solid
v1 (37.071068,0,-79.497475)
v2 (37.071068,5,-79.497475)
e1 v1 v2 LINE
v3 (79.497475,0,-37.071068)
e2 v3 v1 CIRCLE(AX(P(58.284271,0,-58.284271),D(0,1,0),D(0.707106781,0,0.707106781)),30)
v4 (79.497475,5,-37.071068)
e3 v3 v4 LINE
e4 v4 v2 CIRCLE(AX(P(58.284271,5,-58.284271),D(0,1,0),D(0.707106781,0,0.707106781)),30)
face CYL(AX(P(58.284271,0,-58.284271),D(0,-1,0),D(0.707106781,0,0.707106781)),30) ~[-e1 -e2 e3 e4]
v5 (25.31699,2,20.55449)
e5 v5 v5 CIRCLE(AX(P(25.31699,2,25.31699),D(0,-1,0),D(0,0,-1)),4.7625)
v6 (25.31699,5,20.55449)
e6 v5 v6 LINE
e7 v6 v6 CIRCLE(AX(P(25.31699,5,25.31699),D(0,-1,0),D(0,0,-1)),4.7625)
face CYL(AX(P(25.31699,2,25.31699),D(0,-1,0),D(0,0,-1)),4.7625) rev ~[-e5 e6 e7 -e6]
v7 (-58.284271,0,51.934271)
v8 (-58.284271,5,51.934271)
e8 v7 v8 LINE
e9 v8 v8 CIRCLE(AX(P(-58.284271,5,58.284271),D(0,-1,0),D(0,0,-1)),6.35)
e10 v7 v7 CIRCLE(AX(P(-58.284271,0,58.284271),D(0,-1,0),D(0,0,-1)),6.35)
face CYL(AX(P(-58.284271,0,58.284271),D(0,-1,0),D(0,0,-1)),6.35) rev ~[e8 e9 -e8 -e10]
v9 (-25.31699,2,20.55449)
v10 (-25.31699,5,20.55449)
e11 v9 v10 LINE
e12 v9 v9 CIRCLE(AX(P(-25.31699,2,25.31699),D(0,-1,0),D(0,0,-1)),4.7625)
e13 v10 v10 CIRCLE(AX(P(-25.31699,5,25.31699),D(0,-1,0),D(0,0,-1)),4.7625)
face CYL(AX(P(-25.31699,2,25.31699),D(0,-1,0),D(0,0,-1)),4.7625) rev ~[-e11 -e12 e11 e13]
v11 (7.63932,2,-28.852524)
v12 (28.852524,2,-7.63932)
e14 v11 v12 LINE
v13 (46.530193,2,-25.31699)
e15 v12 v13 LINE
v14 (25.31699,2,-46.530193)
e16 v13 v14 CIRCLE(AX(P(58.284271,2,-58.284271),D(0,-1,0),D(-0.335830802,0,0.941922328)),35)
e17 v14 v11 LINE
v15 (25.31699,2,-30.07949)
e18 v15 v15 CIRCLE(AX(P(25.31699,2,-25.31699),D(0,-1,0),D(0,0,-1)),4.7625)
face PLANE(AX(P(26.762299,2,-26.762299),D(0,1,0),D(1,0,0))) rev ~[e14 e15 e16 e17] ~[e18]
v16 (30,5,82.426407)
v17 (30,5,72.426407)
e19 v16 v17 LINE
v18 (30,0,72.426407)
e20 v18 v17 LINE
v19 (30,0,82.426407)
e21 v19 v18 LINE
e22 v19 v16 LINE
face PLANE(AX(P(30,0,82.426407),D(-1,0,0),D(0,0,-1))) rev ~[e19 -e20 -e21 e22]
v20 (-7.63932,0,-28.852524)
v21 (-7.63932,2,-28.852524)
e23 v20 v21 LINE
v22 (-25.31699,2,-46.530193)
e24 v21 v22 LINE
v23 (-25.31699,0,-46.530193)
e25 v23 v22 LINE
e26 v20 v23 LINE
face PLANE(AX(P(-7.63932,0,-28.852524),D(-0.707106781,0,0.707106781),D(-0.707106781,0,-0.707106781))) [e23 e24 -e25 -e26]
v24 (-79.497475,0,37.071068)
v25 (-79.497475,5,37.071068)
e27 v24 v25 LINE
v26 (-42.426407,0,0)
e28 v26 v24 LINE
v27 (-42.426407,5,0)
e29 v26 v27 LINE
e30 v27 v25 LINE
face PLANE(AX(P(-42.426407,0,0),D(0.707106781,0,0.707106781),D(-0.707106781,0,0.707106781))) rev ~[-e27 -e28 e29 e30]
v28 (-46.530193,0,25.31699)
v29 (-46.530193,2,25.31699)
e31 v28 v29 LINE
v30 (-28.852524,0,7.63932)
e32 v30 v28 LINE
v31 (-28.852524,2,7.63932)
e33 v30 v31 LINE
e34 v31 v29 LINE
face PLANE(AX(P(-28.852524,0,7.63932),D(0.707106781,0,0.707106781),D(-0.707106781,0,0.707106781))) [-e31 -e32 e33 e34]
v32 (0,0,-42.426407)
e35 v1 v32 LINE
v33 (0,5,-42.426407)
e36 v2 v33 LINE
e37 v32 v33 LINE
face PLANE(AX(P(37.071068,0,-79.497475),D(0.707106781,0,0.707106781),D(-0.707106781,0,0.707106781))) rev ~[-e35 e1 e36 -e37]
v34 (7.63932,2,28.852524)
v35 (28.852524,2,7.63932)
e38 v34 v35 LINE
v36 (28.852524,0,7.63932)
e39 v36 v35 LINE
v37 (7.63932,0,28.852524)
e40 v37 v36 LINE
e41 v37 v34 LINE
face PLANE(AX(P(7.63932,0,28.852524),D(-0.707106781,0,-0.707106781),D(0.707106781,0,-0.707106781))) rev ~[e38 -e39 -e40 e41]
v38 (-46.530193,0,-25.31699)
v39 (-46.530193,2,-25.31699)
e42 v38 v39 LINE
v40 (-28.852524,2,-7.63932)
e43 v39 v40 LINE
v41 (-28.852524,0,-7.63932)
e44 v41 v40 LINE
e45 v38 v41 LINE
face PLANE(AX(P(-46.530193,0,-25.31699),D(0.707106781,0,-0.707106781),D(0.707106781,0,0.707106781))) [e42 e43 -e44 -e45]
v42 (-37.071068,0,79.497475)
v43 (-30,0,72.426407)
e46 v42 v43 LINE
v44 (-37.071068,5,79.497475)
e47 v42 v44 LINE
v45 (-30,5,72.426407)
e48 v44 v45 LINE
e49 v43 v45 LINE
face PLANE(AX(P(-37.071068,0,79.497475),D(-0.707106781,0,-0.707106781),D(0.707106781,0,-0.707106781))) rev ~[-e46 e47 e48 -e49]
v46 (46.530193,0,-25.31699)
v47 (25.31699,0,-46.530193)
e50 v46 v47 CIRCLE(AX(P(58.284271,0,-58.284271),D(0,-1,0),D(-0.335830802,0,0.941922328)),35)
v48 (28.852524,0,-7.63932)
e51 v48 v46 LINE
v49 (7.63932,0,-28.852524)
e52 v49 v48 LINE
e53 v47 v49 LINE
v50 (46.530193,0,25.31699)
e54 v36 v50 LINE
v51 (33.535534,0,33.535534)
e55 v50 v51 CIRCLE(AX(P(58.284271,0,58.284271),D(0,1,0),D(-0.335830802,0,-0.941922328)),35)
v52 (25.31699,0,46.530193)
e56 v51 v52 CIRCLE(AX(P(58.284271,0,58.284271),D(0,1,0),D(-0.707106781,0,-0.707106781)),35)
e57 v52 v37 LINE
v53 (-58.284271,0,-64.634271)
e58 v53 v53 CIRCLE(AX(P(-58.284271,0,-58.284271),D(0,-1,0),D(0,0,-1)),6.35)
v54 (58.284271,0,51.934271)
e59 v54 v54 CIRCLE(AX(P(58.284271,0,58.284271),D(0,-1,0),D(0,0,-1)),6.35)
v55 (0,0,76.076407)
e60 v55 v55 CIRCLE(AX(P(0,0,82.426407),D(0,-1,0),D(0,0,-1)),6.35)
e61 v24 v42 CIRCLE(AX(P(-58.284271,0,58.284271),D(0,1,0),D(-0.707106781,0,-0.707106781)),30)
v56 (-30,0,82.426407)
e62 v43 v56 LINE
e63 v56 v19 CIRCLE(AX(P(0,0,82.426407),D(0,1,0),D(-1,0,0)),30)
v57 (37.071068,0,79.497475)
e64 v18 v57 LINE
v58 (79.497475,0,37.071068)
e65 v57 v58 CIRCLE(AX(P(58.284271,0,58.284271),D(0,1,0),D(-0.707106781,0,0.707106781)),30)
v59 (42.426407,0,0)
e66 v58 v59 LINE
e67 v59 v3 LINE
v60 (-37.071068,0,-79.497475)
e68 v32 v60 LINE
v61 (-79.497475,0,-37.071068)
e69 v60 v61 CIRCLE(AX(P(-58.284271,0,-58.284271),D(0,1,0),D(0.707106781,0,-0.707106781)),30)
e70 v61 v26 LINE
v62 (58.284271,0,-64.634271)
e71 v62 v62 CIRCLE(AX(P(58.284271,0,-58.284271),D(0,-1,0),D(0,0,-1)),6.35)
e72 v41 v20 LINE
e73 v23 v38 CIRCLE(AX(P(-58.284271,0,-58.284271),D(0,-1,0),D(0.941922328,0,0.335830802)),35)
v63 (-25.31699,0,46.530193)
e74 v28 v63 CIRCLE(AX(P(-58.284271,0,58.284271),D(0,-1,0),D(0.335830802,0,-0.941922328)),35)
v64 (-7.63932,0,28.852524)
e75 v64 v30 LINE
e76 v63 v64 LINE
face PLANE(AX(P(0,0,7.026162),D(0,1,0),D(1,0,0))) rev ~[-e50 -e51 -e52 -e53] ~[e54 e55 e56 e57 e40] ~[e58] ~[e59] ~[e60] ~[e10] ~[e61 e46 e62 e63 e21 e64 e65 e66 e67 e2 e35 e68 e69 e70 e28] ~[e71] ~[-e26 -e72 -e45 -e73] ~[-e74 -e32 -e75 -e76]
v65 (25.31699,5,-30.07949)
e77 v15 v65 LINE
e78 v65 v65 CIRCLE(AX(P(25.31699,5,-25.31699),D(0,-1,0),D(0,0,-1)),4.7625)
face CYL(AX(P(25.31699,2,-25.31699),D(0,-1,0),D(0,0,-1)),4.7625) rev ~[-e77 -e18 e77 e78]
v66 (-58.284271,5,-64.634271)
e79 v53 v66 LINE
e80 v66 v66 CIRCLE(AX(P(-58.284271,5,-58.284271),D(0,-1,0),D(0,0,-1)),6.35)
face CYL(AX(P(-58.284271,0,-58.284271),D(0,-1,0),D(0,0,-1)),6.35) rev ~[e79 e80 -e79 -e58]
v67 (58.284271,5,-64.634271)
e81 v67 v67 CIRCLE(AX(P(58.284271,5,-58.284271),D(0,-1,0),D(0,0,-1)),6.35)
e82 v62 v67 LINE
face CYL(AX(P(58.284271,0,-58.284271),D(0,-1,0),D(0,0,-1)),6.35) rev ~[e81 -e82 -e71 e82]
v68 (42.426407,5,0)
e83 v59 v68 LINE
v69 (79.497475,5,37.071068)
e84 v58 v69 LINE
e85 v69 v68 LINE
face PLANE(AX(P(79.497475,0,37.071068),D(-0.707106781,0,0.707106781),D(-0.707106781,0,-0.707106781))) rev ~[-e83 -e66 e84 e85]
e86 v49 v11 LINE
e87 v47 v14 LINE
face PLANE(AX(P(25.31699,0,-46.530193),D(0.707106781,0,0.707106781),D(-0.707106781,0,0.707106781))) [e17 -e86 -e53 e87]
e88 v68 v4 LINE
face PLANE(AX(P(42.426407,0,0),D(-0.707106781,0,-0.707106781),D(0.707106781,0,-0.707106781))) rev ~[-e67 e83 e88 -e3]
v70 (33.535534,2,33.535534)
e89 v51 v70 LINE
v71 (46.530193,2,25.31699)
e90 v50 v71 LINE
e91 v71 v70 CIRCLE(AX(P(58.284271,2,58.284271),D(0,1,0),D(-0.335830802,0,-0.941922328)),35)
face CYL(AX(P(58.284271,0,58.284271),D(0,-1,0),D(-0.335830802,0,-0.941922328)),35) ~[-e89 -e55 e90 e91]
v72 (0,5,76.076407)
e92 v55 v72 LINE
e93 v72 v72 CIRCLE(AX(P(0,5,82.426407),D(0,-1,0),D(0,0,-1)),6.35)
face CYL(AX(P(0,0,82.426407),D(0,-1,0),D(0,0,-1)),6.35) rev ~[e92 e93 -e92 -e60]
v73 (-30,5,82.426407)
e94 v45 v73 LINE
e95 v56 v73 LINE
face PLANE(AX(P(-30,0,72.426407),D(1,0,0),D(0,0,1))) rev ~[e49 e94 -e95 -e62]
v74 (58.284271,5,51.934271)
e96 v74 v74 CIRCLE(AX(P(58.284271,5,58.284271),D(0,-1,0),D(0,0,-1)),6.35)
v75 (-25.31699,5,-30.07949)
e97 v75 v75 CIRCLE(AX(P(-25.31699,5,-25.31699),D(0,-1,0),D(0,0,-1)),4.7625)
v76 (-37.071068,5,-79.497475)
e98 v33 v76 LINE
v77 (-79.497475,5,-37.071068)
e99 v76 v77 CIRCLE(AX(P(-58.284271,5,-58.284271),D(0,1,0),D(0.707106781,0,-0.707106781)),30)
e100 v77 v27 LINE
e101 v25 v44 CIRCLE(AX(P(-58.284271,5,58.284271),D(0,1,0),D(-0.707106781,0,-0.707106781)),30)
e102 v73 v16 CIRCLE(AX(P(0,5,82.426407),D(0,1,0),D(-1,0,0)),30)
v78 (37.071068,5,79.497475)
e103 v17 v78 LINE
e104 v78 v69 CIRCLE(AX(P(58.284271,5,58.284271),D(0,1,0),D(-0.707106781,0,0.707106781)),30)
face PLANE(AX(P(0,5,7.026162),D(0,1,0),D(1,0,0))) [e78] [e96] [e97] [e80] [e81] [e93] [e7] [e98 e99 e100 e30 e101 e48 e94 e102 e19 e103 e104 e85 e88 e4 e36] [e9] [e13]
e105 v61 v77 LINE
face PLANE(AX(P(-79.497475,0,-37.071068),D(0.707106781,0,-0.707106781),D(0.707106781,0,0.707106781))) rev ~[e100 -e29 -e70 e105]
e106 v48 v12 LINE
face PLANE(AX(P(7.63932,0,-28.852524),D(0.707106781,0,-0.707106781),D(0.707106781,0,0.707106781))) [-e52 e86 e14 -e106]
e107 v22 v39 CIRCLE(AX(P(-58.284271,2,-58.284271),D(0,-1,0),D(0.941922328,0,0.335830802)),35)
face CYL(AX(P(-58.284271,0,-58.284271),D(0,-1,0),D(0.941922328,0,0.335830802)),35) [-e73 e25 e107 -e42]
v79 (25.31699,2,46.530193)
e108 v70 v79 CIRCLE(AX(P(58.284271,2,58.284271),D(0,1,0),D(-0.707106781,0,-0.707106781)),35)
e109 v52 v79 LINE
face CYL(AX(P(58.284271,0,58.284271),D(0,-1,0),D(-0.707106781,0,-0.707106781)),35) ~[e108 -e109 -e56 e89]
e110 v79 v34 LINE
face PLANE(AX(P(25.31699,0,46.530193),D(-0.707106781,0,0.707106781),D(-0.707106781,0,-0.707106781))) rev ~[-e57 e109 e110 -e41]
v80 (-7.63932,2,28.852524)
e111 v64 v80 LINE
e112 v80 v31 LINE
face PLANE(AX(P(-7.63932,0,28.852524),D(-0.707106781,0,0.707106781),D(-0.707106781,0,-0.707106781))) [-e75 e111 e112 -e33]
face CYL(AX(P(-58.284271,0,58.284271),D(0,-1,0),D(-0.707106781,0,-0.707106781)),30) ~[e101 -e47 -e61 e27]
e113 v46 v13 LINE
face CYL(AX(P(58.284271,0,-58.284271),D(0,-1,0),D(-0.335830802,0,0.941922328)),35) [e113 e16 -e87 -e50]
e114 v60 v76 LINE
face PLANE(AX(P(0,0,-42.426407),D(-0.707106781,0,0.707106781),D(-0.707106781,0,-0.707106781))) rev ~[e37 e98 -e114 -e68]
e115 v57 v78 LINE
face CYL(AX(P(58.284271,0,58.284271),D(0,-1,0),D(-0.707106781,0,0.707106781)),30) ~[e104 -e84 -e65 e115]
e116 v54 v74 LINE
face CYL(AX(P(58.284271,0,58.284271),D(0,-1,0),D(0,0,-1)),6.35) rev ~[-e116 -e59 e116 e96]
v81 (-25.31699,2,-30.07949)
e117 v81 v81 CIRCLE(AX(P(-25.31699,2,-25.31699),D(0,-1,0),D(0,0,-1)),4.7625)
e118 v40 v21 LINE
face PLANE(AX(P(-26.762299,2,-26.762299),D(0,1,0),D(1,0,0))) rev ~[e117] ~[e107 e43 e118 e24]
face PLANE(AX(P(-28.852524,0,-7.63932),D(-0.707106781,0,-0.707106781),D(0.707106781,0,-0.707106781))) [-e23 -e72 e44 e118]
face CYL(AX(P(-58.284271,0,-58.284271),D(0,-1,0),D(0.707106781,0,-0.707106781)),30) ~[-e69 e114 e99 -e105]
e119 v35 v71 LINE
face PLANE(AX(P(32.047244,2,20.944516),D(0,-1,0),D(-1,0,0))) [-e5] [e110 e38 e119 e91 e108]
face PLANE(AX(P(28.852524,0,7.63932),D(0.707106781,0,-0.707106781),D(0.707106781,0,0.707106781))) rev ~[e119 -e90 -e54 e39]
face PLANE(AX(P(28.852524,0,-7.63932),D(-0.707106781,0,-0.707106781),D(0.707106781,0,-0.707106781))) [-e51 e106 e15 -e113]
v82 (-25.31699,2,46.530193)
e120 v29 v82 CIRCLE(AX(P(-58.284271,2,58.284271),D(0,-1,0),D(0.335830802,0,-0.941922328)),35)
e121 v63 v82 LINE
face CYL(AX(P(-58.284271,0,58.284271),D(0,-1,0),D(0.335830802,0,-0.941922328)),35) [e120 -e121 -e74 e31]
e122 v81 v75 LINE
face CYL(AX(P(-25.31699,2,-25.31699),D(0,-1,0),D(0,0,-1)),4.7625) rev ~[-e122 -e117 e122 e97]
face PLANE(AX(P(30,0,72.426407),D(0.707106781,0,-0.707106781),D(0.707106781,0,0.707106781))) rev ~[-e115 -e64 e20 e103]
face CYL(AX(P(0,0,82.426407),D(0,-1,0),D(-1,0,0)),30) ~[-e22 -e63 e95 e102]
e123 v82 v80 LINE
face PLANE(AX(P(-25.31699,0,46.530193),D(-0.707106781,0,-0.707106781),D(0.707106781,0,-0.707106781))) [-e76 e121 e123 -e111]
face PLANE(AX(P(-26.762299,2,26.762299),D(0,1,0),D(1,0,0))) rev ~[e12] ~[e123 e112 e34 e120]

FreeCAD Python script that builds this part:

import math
import FreeCAD as App
import Part
import Sketcher

V = App.Vector
Q = App.Units.Quantity

doc = App.newDocument("Part")
body = doc.addObject("PartDesign::Body", "Body")

sketch1 = body.newObject("Sketcher::SketchObject", "Sketch")
sketch1.AttachmentSupport = (doc.getObject("XZ_Plane"), [""])
sketch1.MapMode = "FlatFace"
sketch1.addGeometry([
    Part.LineSegment(V(79, 37, 0), V(42, 0, 0)),
    Part.LineSegment(V(42, 0, 0), V(79, -37, 0)),
    Part.ArcOfCircle(Part.Circle(V(58, -58, 0), V(0, 0, 1), 30), math.radians(-135), math.radians(45)),
    Part.LineSegment(V(37, -79, 0), V(0, -42, 0)),
    Part.LineSegment(V(0, -42, 0), V(-37, -79, 0)),
    Part.ArcOfCircle(Part.Circle(V(-58, -58, 0), V(0, 0, 1), 30), math.radians(135), math.radians(315)),
    Part.LineSegment(V(-79, -37, 0), V(-42, 0, 0)),
    Part.LineSegment(V(-42, 0, 0), V(-79, 37, 0)),
    Part.ArcOfCircle(Part.Circle(V(-58, 58, 0), V(0, 0, 1), 30), math.radians(45), math.radians(225)),
    Part.LineSegment(V(-37, 79, 0), V(-30, 72, 0)),
    Part.LineSegment(V(-30, 72, 0), V(-30, 82, 0)),
    Part.ArcOfCircle(Part.Circle(V(0, 82, 0), V(0, 0, 1), 30), math.radians(0), math.radians(180)),
    Part.LineSegment(V(30, 82, 0), V(30, 72, 0)),
    Part.LineSegment(V(30, 72, 0), V(37, 79, 0)),
    Part.ArcOfCircle(Part.Circle(V(58, 58, 0), V(0, 0, 1), 30), math.radians(-45), math.radians(135)),
], False)
sketch1.addConstraint([
    Sketcher.Constraint("Coincident", 0, 2, 1, 1),
    Sketcher.Constraint("Tangent", 1, 2, 2, 2),
    Sketcher.Constraint("Tangent", 2, 1, 3, 1),
    Sketcher.Constraint("Coincident", 3, 2, 4, 1),
    Sketcher.Constraint("Tangent", 4, 2, 5, 2),
    Sketcher.Constraint("Tangent", 5, 1, 6, 1),
    Sketcher.Constraint("Coincident", 6, 2, 7, 1),
    Sketcher.Constraint("Tangent", 7, 2, 8, 2),
    Sketcher.Constraint("Tangent", 8, 1, 9, 1),
    Sketcher.Constraint("Coincident", 9, 2, 10, 1),
    Sketcher.Constraint("Tangent", 10, 2, 11, 2),
    Sketcher.Constraint("Tangent", 11, 1, 12, 1),
    Sketcher.Constraint("Coincident", 12, 2, 13, 1),
    Sketcher.Constraint("Tangent", 13, 2, 14, 2),
    Sketcher.Constraint("Tangent", 14, 1, 0, 1),
    Sketcher.Constraint("Vertical", 10),
    Sketcher.Constraint("Vertical", 12),
    Sketcher.Constraint("Equal", 2, 5),
    Sketcher.Constraint("Equal", 5, 8),
    Sketcher.Constraint("Equal", 8, 11),
    Sketcher.Constraint("Equal", 11, 14),
    Sketcher.Constraint("Symmetric", 2, 3, 8, 3, -1, 1),
    Sketcher.Constraint("Symmetric", 5, 3, 14, 3, -1, 1),
    Sketcher.Constraint("Symmetric", 0, 2, 6, 2, -1, 1),
    Sketcher.Constraint("Symmetric", 2, 3, 5, 3, -2),
    Sketcher.Constraint("Symmetric", 9, 2, 12, 2, -2),
    Sketcher.Constraint("PointOnObject", 0, 2, -1),
    Sketcher.Constraint("PointOnObject", 3, 2, -2),
    Sketcher.Constraint("Perpendicular", 0, 1),
    Sketcher.Constraint("Parallel", 1, 3),
    Sketcher.Constraint("Parallel", 7, 9),
    Sketcher.Constraint("Equal", 1, 3),
    Sketcher.Constraint("Radius", 2, Q("30 mm")),
    Sketcher.Constraint("DistanceY", 10, 1, 10, 2, Q("10 mm")),
    Sketcher.Constraint("Distance", 9, Q("10 mm")),
])
pad1 = body.newObject("PartDesign::Pad", "Pad")
pad1.Profile = sketch1
pad1.Length = 5
pad1.Reversed = True

sketch2 = body.newObject("Sketcher::SketchObject", "Sketch001")
sketch2.AttachmentSupport = (doc.getObject("XZ_Plane"), [""])
sketch2.MapMode = "FlatFace"
sketch2.addGeometry([
    Part.LineSegment(V(29, 8, 0), V(47, 25, 0)),
    Part.ArcOfCircle(Part.Circle(V(58, 58, 0), V(0, 0, 1), 35), math.radians(-135), math.radians(-110)),
    Part.ArcOfCircle(Part.Circle(V(58, 58, 0), V(0, 0, 1), 35), math.radians(-160), math.radians(-135)),
    Part.LineSegment(V(25, 47, 0), V(8, 29, 0)),
    Part.LineSegment(V(8, 29, 0), V(29, 8, 0)),
    Part.ArcOfCircle(Part.Circle(V(58, -58, 0), V(0, 0, 1), 35), math.radians(110), math.radians(160)),
    Part.LineSegment(V(47, -25, 0), V(29, -8, 0)),
    Part.LineSegment(V(29, -8, 0), V(8, -29, 0)),
    Part.LineSegment(V(8, -29, 0), V(25, -47, 0)),
    Part.ArcOfCircle(Part.Circle(V(-58, -58, 0), V(0, 0, 1), 35), math.radians(20), math.radians(70)),
    Part.LineSegment(V(-25, -47, 0), V(-8, -29, 0)),
    Part.LineSegment(V(-8, -29, 0), V(-29, -8, 0)),
    Part.LineSegment(V(-29, -8, 0), V(-47, -25, 0)),
    Part.ArcOfCircle(Part.Circle(V(-58, 58, 0), V(0, 0, 1), 35), math.radians(-70), math.radians(-20)),
    Part.LineSegment(V(-47, 25, 0), V(-29, 8, 0)),
    Part.LineSegment(V(-29, 8, 0), V(-8, 29, 0)),
    Part.LineSegment(V(-8, 29, 0), V(-25, 47, 0)),
], False)
sketch2.addConstraint([
    Sketcher.Constraint("Coincident", 0, 2, 1, 2),
    Sketcher.Constraint("Tangent", 1, 1, 2, 2),
    Sketcher.Constraint("Coincident", 2, 1, 3, 1),
    Sketcher.Constraint("Coincident", 3, 2, 4, 1),
    Sketcher.Constraint("Coincident", 4, 2, 0, 1),
    Sketcher.Constraint("Coincident", 5, 1, 6, 1),
    Sketcher.Constraint("Coincident", 6, 2, 7, 1),
    Sketcher.Constraint("Coincident", 7, 2, 8, 1),
    Sketcher.Constraint("Coincident", 8, 2, 5, 2),
    Sketcher.Constraint("Coincident", 9, 1, 10, 1),
    Sketcher.Constraint("Coincident", 10, 2, 11, 1),
    Sketcher.Constraint("Coincident", 11, 2, 12, 1),
    Sketcher.Constraint("Coincident", 12, 2, 9, 2),
    Sketcher.Constraint("Coincident", 13, 1, 14, 1),
    Sketcher.Constraint("Coincident", 14, 2, 15, 1),
    Sketcher.Constraint("Coincident", 15, 2, 16, 1),
    Sketcher.Constraint("Coincident", 16, 2, 13, 2),
    Sketcher.Constraint("Equal", 1, 2),
    Sketcher.Constraint("Equal", 2, 5),
    Sketcher.Constraint("Equal", 5, 9),
    Sketcher.Constraint("Equal", 9, 13),
    Sketcher.Constraint("Symmetric", 1, 3, 9, 3, -1, 1),
    Sketcher.Constraint("Symmetric", 5, 3, 13, 3, -1, 1),
    Sketcher.Constraint("Symmetric", 3, 2, 10, 2, -1, 1),
    Sketcher.Constraint("Symmetric", 4, 2, 11, 2, -1, 1),
    Sketcher.Constraint("Symmetric", 6, 2, 14, 2, -1, 1),
    Sketcher.Constraint("Symmetric", 7, 2, 15, 2, -1, 1),
    Sketcher.Constraint("Symmetric", 5, 3, 9, 3, -2),
    Sketcher.Constraint("Symmetric", 7, 2, 10, 2, -2),
    Sketcher.Constraint("Symmetric", 6, 2, 11, 2, -2),
    Sketcher.Constraint("Parallel", 0, 3),
    Sketcher.Constraint("Perpendicular", 3, 4),
    Sketcher.Constraint("Parallel", 4, 6),
    Sketcher.Constraint("Perpendicular", 6, 7),
    Sketcher.Constraint("Perpendicular", 7, 8),
    Sketcher.Constraint("Perpendicular", 8, 10),
    Sketcher.Constraint("Perpendicular", 11, 12),
    Sketcher.Constraint("Perpendicular", 12, 14),
    Sketcher.Constraint("Perpendicular", 15, 16),
    Sketcher.Constraint("Equal", 0, 3),
    Sketcher.Constraint("Radius", 1, Q("35 mm")),
    Sketcher.Constraint("Distance", 0, Q("25 mm")),
    Sketcher.Constraint("Distance", 4, Q("30 mm")),
    Sketcher.Constraint("DistanceX", -1, 1, 1, 3, Q("58.284271 mm")),
    Sketcher.Constraint("DistanceY", -1, 1, 1, 3, Q("58.284271 mm")),
    Sketcher.Constraint("DistanceX", 1, 1, 0, 2, Q("12.994659 mm")),
])
pocket1 = body.newObject("PartDesign::Pocket", "Pocket")
pocket1.Profile = sketch2
pocket1.Length = 2

sketch3 = body.newObject("Sketcher::SketchObject", "Sketch002")
sketch3.AttachmentSupport = (doc.getObject("XZ_Plane"), [""])
sketch3.MapMode = "FlatFace"
sketch3.AttachmentOffset = App.Placement(V(0, 0, -2), App.Rotation())
sketch3.addGeometry([
    Part.Circle(V(25.3, 25.3, 0), V(0, 0, 1), 4.8),
    Part.Circle(V(25.3, -25.3, 0), V(0, 0, 1), 4.8),
    Part.Circle(V(-25.3, -25.3, 0), V(0, 0, 1), 4.8),
    Part.Circle(V(-25.3, 25.3, 0), V(0, 0, 1), 4.8),
], False)
sketch3.addConstraint([
    Sketcher.Constraint("Equal", 0, 1),
    Sketcher.Constraint("Equal", 1, 2),
    Sketcher.Constraint("Equal", 2, 3),
    Sketcher.Constraint("Symmetric", 0, 3, 2, 3, -1, 1),
    Sketcher.Constraint("Symmetric", 1, 3, 3, 3, -1, 1),
    Sketcher.Constraint("Symmetric", 1, 3, 2, 3, -2),
    Sketcher.Constraint("Diameter", 0, Q("9.525 mm")),
    Sketcher.Constraint("DistanceX", -1, 1, 0, 3, Q("25.31699 mm")),
    Sketcher.Constraint("DistanceY", -1, 1, 0, 3, Q("25.31699 mm")),
])
pocket2 = body.newObject("PartDesign::Pocket", "Pocket001")
pocket2.Profile = sketch3
pocket2.Type = "ThroughAll"

sketch4 = body.newObject("Sketcher::SketchObject", "Sketch003")
sketch4.AttachmentSupport = (doc.getObject("XZ_Plane"), [""])
sketch4.MapMode = "FlatFace"
sketch4.addGeometry([
    Part.Circle(V(0, 82, 0), V(0, 0, 1), 6),
    Part.Circle(V(58, 58, 0), V(0, 0, 1), 6),
    Part.Circle(V(58, -58, 0), V(0, 0, 1), 6),
    Part.Circle(V(-58, -58, 0), V(0, 0, 1), 6),
    Part.Circle(V(-58, 58, 0), V(0, 0, 1), 6),
], False)
sketch4.addConstraint([
    Sketcher.Constraint("Equal", 0, 1),
    Sketcher.Constraint("Equal", 1, 2),
    Sketcher.Constraint("Equal", 2, 3),
    Sketcher.Constraint("Equal", 3, 4),
    Sketcher.Constraint("Symmetric", 1, 3, 3, 3, -1, 1),
    Sketcher.Constraint("Symmetric", 2, 3, 4, 3, -1, 1),
    Sketcher.Constraint("Symmetric", 2, 3, 3, 3, -2),
    Sketcher.Constraint("PointOnObject", 0, 3, -2),
    Sketcher.Constraint("Diameter", 0, Q("12.7 mm")),
    Sketcher.Constraint("DistanceX", -1, 1, 1, 3, Q("58.284271 mm")),
    Sketcher.Constraint("DistanceY", -1, 1, 1, 3, Q("58.284271 mm")),
    Sketcher.Constraint("DistanceY", 2, 3, 0, 3, Q("140.710678 mm")),
])
pocket3 = body.newObject("PartDesign::Pocket", "Pocket002")
pocket3.Profile = sketch4
pocket3.Type = "ThroughAll"

doc.recompute()
